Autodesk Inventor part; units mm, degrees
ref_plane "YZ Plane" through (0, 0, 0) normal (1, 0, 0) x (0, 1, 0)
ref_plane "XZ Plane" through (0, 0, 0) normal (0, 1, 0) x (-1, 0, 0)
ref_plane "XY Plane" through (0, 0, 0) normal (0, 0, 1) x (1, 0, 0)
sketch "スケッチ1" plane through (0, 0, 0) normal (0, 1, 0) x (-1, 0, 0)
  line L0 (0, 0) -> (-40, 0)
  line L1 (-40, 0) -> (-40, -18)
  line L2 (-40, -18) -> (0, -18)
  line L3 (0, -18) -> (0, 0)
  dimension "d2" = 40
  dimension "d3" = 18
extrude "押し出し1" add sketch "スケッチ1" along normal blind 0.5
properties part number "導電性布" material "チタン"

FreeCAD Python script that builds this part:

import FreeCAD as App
import Part
import Sketcher
Q = App.Units.Quantity


def add_polygon(sketch, points):
    """Adds a closed chain of lines whose ends are joined by coincident constraints."""
    first, n = sketch.GeometryCount, len(points)
    for a, b in zip(points, points[1:] + points[:1]):
        sketch.addGeometry(Part.LineSegment(App.Vector(*a, 0), App.Vector(*b, 0)), False)
    for i in range(n):
        sketch.addConstraint(Sketcher.Constraint("Coincident", first + i, 2, first + (i + 1) % n, 1))

doc = App.newDocument("Part")
body = doc.addObject("PartDesign::Body", "Body")

# Sketch on XZ plane
sketch1 = doc.addObject("Sketcher::SketchObject", "Sketch")
body.addObject(sketch1)
sketch1.AttachmentSupport = (doc.XZ_Plane, [""])
sketch1.MapMode = "FlatFace"
add_polygon(sketch1, [(0, -18), (0, 0), (40, 0), (40, -18)])  # lines 0-3
sketch1.addConstraint([
    Sketcher.Constraint("Vertical", 0),
    Sketcher.Constraint("Horizontal", 1),
    Sketcher.Constraint("Vertical", 2),
    Sketcher.Constraint("Horizontal", 3),
    Sketcher.Constraint("Coincident", 0, 2, -1, 1),
    Sketcher.Constraint("DistanceX", 1, 1, 1, 2, Q("40 mm")),
    Sketcher.Constraint("DistanceY", 0, 1, 0, 2, Q("18 mm")),
])
pad1 = doc.addObject("PartDesign::Pad", "Pad")
body.addObject(pad1)
pad1.Profile = sketch1
pad1.Length = 0.5
pad1.Reversed = True

doc.recompute()
